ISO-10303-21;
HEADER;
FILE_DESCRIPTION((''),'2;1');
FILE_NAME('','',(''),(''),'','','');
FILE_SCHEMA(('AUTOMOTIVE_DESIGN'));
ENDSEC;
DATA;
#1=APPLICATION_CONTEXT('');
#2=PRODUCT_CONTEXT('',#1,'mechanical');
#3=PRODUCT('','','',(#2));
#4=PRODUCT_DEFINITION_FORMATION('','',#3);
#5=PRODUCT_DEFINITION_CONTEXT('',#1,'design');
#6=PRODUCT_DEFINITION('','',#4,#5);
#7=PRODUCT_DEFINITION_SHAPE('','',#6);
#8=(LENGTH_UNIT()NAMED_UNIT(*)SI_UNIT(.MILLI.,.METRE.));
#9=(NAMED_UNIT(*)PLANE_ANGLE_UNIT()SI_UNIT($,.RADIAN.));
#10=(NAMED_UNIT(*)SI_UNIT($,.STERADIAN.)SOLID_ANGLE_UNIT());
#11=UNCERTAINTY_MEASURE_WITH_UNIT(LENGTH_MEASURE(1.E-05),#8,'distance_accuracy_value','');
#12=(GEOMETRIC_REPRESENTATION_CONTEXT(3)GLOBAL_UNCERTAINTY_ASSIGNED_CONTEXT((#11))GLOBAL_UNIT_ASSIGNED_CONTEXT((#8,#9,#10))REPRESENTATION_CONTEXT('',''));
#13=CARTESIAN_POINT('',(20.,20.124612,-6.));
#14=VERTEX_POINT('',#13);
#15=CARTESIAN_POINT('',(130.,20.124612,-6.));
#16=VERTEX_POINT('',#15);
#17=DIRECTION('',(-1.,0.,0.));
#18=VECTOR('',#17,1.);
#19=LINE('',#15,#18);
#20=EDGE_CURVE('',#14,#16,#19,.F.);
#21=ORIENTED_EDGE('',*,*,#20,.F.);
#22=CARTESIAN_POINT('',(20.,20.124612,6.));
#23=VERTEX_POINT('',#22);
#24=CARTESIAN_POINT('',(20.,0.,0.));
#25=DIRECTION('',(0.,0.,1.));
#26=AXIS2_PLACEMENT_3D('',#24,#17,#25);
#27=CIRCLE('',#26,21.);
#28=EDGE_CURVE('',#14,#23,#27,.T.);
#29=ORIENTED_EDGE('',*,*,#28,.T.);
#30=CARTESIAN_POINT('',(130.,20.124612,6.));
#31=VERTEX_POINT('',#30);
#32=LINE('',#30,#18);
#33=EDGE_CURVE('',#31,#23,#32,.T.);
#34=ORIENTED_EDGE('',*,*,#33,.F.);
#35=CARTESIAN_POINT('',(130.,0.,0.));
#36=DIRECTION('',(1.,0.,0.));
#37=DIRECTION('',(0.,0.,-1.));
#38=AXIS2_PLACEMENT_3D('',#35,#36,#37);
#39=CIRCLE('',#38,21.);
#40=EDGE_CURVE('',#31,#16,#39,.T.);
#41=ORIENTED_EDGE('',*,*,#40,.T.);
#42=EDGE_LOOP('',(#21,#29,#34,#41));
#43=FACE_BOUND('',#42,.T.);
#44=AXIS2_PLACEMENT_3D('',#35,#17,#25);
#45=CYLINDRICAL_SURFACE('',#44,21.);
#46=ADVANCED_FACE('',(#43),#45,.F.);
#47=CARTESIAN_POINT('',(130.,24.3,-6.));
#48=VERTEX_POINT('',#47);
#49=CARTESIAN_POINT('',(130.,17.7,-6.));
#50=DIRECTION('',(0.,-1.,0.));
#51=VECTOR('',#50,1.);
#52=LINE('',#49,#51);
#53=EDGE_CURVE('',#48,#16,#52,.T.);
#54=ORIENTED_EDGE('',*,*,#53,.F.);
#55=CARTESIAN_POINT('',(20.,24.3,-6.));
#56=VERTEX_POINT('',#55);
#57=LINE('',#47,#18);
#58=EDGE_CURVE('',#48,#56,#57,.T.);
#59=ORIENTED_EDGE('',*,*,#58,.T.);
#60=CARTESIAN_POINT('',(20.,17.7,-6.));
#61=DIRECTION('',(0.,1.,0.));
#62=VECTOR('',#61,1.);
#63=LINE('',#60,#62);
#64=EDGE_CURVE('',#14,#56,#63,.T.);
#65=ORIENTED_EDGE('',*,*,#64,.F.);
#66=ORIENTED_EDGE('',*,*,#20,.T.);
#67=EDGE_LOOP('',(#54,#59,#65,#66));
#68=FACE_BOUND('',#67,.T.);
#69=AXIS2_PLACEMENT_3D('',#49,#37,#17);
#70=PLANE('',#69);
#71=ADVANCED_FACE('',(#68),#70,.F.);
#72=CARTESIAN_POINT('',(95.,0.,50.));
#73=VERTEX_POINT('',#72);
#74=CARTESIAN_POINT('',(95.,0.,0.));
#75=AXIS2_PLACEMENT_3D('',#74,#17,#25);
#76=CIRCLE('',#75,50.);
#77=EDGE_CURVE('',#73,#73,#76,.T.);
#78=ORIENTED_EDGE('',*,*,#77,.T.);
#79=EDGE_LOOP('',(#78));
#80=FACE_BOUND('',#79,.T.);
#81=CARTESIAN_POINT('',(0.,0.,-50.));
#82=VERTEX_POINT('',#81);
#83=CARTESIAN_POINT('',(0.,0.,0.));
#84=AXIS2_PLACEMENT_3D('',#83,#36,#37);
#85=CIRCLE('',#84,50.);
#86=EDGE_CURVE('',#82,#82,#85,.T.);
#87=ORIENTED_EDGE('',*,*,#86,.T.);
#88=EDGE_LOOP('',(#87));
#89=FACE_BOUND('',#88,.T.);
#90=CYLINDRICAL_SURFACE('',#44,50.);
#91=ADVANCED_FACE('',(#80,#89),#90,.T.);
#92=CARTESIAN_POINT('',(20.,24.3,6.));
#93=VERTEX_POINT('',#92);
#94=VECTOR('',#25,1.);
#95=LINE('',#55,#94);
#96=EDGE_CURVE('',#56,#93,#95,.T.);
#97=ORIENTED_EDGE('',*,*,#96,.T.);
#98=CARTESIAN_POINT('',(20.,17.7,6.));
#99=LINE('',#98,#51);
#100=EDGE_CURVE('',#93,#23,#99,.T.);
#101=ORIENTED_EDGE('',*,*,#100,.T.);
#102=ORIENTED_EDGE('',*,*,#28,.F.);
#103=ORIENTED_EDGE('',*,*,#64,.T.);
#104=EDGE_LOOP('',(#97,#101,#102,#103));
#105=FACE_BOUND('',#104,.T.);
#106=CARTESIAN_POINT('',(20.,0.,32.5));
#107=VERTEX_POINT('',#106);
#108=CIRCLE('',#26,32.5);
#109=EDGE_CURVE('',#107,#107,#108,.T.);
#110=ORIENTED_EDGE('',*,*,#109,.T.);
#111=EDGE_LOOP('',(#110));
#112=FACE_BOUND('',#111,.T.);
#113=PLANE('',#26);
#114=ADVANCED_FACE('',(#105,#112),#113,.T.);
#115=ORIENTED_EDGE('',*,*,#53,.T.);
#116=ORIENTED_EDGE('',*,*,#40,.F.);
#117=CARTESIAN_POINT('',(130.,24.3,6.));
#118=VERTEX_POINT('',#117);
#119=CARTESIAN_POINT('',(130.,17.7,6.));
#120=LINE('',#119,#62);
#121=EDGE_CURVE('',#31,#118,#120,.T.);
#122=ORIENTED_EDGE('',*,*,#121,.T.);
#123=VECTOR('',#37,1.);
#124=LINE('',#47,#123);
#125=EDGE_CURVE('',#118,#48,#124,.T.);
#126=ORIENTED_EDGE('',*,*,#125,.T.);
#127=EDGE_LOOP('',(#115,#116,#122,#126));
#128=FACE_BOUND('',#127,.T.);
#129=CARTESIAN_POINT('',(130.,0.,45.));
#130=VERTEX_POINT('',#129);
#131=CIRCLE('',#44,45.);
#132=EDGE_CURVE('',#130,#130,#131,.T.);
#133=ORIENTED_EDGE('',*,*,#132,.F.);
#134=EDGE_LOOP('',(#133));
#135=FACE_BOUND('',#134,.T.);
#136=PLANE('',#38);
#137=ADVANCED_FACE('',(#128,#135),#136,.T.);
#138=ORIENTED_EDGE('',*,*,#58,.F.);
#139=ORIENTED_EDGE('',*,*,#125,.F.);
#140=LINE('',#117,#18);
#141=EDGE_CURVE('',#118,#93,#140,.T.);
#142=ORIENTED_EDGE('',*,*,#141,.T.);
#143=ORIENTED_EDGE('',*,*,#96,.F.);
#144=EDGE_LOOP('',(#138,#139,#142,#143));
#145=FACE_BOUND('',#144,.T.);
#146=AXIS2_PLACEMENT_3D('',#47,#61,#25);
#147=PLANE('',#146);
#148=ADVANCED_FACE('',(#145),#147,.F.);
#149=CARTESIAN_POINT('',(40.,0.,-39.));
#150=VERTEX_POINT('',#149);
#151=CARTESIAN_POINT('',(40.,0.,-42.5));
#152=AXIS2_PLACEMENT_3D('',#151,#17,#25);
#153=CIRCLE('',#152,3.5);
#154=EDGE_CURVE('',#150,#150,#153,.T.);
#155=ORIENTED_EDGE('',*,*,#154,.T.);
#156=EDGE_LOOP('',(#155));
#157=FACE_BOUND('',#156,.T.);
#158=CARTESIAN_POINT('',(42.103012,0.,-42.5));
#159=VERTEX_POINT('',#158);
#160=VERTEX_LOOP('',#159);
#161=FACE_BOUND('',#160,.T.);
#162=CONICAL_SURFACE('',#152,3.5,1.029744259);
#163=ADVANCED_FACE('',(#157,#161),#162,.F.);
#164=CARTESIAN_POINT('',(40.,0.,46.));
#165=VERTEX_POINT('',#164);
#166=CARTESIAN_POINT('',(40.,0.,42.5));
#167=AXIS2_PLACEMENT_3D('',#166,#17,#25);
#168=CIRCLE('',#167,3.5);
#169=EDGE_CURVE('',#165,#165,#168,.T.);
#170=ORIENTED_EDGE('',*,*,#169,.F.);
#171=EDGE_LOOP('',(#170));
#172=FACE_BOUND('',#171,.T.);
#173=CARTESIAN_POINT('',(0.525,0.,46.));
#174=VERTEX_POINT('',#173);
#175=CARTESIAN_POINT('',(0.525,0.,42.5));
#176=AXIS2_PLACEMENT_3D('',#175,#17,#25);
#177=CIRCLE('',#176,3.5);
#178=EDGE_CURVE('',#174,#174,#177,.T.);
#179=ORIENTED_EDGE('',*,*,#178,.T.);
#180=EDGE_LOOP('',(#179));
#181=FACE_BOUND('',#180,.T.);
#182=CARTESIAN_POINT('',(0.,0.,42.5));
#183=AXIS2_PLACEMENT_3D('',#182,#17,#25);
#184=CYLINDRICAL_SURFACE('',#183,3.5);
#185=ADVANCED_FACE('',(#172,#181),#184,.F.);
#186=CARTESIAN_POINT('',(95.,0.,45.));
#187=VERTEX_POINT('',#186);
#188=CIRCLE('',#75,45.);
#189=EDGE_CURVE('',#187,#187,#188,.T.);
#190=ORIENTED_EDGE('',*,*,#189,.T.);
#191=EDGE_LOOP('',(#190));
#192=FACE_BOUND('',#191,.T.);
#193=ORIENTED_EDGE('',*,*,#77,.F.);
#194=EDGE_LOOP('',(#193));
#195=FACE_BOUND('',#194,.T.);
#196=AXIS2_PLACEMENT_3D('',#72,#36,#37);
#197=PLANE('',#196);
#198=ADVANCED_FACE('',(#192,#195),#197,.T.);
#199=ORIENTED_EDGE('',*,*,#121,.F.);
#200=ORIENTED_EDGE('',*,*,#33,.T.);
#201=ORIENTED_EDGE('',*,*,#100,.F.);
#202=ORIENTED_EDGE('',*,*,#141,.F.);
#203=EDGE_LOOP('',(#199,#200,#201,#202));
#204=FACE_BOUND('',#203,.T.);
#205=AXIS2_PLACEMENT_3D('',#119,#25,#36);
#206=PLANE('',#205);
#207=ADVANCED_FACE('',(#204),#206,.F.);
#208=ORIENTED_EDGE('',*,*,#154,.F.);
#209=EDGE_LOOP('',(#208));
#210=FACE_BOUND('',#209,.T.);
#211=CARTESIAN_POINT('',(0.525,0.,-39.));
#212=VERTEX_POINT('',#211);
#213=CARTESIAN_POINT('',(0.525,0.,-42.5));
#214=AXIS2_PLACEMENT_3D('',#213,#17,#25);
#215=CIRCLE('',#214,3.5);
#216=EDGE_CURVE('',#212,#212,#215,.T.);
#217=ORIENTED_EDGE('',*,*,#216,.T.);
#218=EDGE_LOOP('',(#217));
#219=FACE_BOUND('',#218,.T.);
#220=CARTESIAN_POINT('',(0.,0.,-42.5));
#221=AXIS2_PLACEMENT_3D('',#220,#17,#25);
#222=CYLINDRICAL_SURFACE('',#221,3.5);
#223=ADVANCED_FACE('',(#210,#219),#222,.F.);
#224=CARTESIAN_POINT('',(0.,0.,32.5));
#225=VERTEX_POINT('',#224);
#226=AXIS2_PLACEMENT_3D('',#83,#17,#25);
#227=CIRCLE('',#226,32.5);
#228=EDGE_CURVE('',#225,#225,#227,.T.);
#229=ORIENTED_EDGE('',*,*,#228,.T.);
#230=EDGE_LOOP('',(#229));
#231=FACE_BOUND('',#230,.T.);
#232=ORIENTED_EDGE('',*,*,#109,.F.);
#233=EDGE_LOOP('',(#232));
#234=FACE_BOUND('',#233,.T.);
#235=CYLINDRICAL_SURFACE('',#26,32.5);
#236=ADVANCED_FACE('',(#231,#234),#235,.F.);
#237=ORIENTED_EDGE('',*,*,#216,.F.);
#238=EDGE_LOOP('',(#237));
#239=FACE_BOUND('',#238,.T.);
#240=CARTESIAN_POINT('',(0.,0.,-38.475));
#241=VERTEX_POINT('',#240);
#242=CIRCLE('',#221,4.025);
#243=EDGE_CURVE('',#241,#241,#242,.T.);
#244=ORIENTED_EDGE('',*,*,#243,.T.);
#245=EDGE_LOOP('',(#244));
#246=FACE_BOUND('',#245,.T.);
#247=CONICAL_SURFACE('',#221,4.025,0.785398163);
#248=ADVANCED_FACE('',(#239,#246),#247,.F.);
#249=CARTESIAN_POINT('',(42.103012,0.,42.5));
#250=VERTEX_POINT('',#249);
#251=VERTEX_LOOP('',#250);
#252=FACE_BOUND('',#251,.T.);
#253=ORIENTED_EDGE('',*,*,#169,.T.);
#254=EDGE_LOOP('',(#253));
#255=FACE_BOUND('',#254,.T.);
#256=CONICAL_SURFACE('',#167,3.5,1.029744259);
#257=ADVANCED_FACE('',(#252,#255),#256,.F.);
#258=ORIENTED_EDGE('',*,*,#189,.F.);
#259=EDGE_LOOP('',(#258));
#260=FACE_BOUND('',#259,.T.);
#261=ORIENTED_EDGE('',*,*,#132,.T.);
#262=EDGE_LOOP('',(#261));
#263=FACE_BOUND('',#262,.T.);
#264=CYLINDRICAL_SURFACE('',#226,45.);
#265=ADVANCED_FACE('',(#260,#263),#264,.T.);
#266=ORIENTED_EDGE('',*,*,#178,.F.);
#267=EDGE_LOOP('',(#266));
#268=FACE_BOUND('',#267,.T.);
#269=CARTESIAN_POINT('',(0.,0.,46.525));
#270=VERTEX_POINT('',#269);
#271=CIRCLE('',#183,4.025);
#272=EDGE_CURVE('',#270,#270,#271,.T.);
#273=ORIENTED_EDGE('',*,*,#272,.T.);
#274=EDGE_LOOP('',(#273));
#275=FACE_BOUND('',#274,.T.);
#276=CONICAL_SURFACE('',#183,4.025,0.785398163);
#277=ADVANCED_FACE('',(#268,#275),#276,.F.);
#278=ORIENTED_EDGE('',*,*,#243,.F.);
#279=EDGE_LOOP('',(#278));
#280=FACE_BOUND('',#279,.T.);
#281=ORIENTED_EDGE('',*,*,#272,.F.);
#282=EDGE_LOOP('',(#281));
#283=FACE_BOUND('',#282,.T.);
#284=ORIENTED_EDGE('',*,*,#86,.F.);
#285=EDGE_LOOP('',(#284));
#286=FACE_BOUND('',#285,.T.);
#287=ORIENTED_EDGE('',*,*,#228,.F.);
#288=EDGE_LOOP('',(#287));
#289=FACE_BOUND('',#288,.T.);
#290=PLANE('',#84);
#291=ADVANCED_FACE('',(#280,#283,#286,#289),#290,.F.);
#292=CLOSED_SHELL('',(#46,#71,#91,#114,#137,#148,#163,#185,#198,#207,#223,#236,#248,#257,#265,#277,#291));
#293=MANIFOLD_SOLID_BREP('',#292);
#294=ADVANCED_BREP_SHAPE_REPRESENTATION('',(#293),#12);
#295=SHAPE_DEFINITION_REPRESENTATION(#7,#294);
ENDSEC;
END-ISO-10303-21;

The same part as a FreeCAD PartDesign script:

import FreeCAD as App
import Part
import Sketcher


def add_polygon(sketch, points):
    """Adds a closed chain of lines whose ends are joined by coincident constraints."""
    first, n = sketch.GeometryCount, len(points)
    for a, b in zip(points, points[1:] + points[:1]):
        sketch.addGeometry(Part.LineSegment(App.Vector(*a, 0), App.Vector(*b, 0)), False)
    for i in range(n):
        sketch.addConstraint(Sketcher.Constraint("Coincident", first + i, 2, first + (i + 1) % n, 1))

doc = App.newDocument("Part")
body = doc.addObject("PartDesign::Body", "Body")

# Sketch on YZ plane
sketch1 = doc.addObject("Sketcher::SketchObject", "Sketch")
body.addObject(sketch1)
sketch1.AttachmentSupport = (doc.YZ_Plane, [""])
sketch1.MapMode = "FlatFace"
sketch1.addGeometry([
    Part.Circle(App.Vector(0, 0, 0), App.Vector(0, 0, 1), 50),
    Part.Circle(App.Vector(0, 0, 0), App.Vector(0, 0, 1), 21),
], False)
sketch1.addConstraint([
    Sketcher.Constraint("Coincident", 0, 3, -1, 1),
    Sketcher.Constraint("Coincident", 1, 3, -1, 1),
    Sketcher.Constraint("Diameter", 0, 100.0),
    Sketcher.Constraint("Diameter", 1, 42.0),
])
pad1 = doc.addObject("PartDesign::Pad", "Pad")
body.addObject(pad1)
pad1.Profile = sketch1
pad1.Length = 130

# Sketch on YZ plane
sketch2 = doc.addObject("Sketcher::SketchObject", "Sketch001")
body.addObject(sketch2)
sketch2.AttachmentSupport = (doc.YZ_Plane, [""])
sketch2.MapMode = "FlatFace"
add_polygon(sketch2, [(24.3, -6), (17.7, -6), (17.7, 6), (24.3, 6)])  # lines 0-3
sketch2.addConstraint([
    Sketcher.Constraint("Horizontal", 0),
    Sketcher.Constraint("Vertical", 1),
    Sketcher.Constraint("Horizontal", 2),
    Sketcher.Constraint("Vertical", 3),
    Sketcher.Constraint("DistanceY", 1, 1, 1, 2, 12.0),
    Sketcher.Constraint("DistanceX", 0, 2, 0, 1, 6.6),
    Sketcher.Constraint("DistanceY", 0, 2, -1, 1, 6.0),
    Sketcher.Constraint("DistanceX", -1, 1, 0, 2, 17.7),
])
pocket1 = doc.addObject("PartDesign::Pocket", "Pocket")
body.addObject(pocket1)
pocket1.Profile = sketch2
pocket1.Type = "ThroughAll"
pocket1.Midplane = True

# Sketch on XZ plane
sketch3 = doc.addObject("Sketcher::SketchObject", "Sketch002")
body.addObject(sketch3)
sketch3.AttachmentSupport = (doc.XZ_Plane, [""])
sketch3.MapMode = "FlatFace"
add_polygon(sketch3, [(95, 45), (95, 50), (130, 50), (130, 45)])  # lines 0-3
sketch3.addConstraint([
    Sketcher.Constraint("Vertical", 0),
    Sketcher.Constraint("Horizontal", 1),
    Sketcher.Constraint("Vertical", 2),
    Sketcher.Constraint("Horizontal", 3),
    Sketcher.Constraint("DistanceX", 1, 1, 1, 2, 35.0),
    Sketcher.Constraint("DistanceY", 0, 1, 0, 2, 5.0),
    Sketcher.Constraint("DistanceX", -1, 1, 0, 2, 95.0),
    Sketcher.Constraint("DistanceY", -1, 1, 0, 2, 50.0),
])
groove = doc.addObject("PartDesign::Groove", "Groove")
body.addObject(groove)
groove.Profile = sketch3
groove.ReferenceAxis = (sketch3, ["H_Axis"])
groove.Angle = 360

# Sketch on YZ plane
sketch4 = doc.addObject("Sketcher::SketchObject", "Sketch003")
body.addObject(sketch4)
sketch4.AttachmentSupport = (doc.YZ_Plane, [""])
sketch4.MapMode = "FlatFace"
sketch4.addGeometry(Part.Circle(App.Vector(0, 0, 0), App.Vector(0, 0, 1), 32.5), False)
sketch4.addConstraint([
    Sketcher.Constraint("Coincident", 0, 3, -1, 1),
    Sketcher.Constraint("Diameter", 0, 65.0),
])
pocket2 = doc.addObject("PartDesign::Pocket", "Pocket001")
body.addObject(pocket2)
pocket2.Profile = sketch4
pocket2.Length = 20
pocket2.Reversed = True

# Sketch on YZ plane
sketch5 = doc.addObject("Sketcher::SketchObject", "Sketch004")
body.addObject(sketch5)
sketch5.AttachmentSupport = (doc.YZ_Plane, [""])
sketch5.MapMode = "FlatFace"
sketch5.addGeometry([
    Part.Circle(App.Vector(0, -42.5, 0), App.Vector(0, 0, 1), 3.5),
    Part.Circle(App.Vector(0, 42.5, 0), App.Vector(0, 0, 1), 3.5),
], False)
sketch5.addConstraint([
    Sketcher.Constraint("Equal", 0, 1),
    Sketcher.Constraint("Symmetric", 0, 3, 1, 3, -1, 1),
    Sketcher.Constraint("PointOnObject", 0, 3, -2),
    Sketcher.Constraint("Diameter", 0, 7.0),
    Sketcher.Constraint("DistanceY", 0, 3, 1, 3, 85.0),
])
doc.recompute()
hole = doc.addObject("PartDesign::Hole", "Hole")
body.addObject(hole)
hole.Profile = sketch5
hole.ThreadType = "None"
hole.Diameter = 7
hole.DepthType = "Dimension"
hole.Depth = 40
hole.DrillPoint = "Angled"
hole.DrillPointAngle = 118
hole.HoleCutType = "Countersink"
hole.HoleCutDiameter = 8.05
hole.HoleCutCountersinkAngle = 90
hole.Reversed = True

doc.recompute()
